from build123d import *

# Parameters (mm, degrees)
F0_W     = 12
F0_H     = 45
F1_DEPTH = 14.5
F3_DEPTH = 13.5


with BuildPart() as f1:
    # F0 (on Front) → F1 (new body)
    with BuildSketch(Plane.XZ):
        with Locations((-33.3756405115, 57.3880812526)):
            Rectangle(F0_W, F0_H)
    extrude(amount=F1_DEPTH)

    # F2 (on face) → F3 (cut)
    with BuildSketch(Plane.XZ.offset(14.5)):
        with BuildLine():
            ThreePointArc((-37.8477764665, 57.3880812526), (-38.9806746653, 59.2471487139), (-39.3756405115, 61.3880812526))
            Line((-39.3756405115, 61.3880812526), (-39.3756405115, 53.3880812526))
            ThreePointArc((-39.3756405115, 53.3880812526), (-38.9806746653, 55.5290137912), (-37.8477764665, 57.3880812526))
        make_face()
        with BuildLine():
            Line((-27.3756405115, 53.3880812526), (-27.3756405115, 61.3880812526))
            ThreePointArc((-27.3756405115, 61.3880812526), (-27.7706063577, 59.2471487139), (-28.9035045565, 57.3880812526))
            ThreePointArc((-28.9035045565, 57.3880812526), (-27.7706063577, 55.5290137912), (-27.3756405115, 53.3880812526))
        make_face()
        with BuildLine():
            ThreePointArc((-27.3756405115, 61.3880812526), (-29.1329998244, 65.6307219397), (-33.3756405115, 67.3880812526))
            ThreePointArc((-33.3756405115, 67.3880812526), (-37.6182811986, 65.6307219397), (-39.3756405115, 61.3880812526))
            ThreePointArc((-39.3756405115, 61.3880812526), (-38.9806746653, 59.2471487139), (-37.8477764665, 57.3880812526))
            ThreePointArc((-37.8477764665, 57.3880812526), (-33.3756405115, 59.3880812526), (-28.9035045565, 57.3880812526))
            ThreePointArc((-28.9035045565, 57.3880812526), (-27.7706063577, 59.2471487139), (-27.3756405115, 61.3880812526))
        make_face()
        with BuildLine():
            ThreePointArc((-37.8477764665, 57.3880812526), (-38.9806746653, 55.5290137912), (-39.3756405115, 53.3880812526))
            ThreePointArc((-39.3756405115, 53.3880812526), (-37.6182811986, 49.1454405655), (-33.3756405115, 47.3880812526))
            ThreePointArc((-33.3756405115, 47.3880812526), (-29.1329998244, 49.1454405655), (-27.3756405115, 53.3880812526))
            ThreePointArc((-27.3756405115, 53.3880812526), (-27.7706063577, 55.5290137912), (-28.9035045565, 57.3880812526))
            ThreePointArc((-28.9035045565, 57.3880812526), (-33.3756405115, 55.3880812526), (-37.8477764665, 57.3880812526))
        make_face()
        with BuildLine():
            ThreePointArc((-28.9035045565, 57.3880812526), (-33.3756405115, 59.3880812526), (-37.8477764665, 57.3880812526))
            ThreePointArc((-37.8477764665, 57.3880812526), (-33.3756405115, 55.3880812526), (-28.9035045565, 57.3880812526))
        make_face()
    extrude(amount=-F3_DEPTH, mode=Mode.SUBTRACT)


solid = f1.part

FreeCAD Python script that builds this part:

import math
import FreeCAD as App
import Part
import Sketcher


def add_polygon(sketch, points):
    """Adds a closed chain of lines whose ends are joined by coincident constraints."""
    first, n = sketch.GeometryCount, len(points)
    for a, b in zip(points, points[1:] + points[:1]):
        sketch.addGeometry(Part.LineSegment(App.Vector(*a, 0), App.Vector(*b, 0)), False)
    for i in range(n):
        sketch.addConstraint(Sketcher.Constraint("Coincident", first + i, 2, first + (i + 1) % n, 1))

doc = App.newDocument("Part")
body = doc.addObject("PartDesign::Body", "Body")

# Sketch on XZ plane
sketch1 = doc.addObject("Sketcher::SketchObject", "Sketch")
body.addObject(sketch1)
sketch1.AttachmentSupport = (doc.XZ_Plane, [""])
sketch1.MapMode = "FlatFace"
add_polygon(sketch1, [(-39, 80), (-39, 35), (-27, 35), (-27, 80)])  # lines 0-3
sketch1.addConstraint([
    Sketcher.Constraint("Vertical", 0),
    Sketcher.Constraint("Horizontal", 1),
    Sketcher.Constraint("Vertical", 2),
    Sketcher.Constraint("Horizontal", 3),
    Sketcher.Constraint("DistanceX", 1, 1, 1, 2, 12.0),
    Sketcher.Constraint("DistanceY", 0, 2, 0, 1, 45.0),
    Sketcher.Constraint("DistanceX", 0, 2, -1, 1, 39.375641),
    Sketcher.Constraint("DistanceY", -1, 1, 0, 2, 34.888081),
])
pad1 = doc.addObject("PartDesign::Pad", "Pad")
body.addObject(pad1)
pad1.Profile = sketch1
pad1.Length = 14.5

# Sketch on XZ plane
sketch2 = doc.addObject("Sketcher::SketchObject", "Sketch001")
body.addObject(sketch2)
sketch2.AttachmentSupport = (doc.XZ_Plane, [""])
sketch2.MapMode = "FlatFace"
sketch2.AttachmentOffset = App.Placement(App.Vector(0, 0, 14.5), App.Rotation())
sketch2.addGeometry([
    Part.LineSegment(App.Vector(-39, 61, 0), App.Vector(-39, 53, 0)),  # 0
    Part.ArcOfCircle(Part.Circle(App.Vector(-33, 53, 0), App.Vector(0, 0, 1), 6), math.radians(180), math.radians(270)),  # 1
    Part.ArcOfCircle(Part.Circle(App.Vector(-33, 53, 0), App.Vector(0, 0, 1), 6), math.radians(-90), math.radians(0)),  # 2
    Part.LineSegment(App.Vector(-27, 53, 0), App.Vector(-27, 61, 0)),  # 3
    Part.ArcOfCircle(Part.Circle(App.Vector(-33, 61, 0), App.Vector(0, 0, 1), 6), math.radians(0), math.radians(90)),  # 4
    Part.ArcOfCircle(Part.Circle(App.Vector(-33, 61, 0), App.Vector(0, 0, 1), 6), math.radians(90), math.radians(180)),  # 5
], False)
sketch2.addConstraint([
    Sketcher.Constraint("Tangent", 0, 2, 1, 1),
    Sketcher.Constraint("Tangent", 1, 2, 2, 1),
    Sketcher.Constraint("Tangent", 2, 2, 3, 1),
    Sketcher.Constraint("Tangent", 3, 2, 4, 1),
    Sketcher.Constraint("Tangent", 4, 2, 5, 1),
    Sketcher.Constraint("Tangent", 5, 2, 0, 1),
    Sketcher.Constraint("Vertical", 0),
    Sketcher.Constraint("Vertical", 3),
    Sketcher.Constraint("Equal", 1, 2),
    Sketcher.Constraint("Equal", 2, 4),
    Sketcher.Constraint("Vertical", 5, 3, 1, 2),
    Sketcher.Constraint("Vertical", 1, 2, 4, 2),
    Sketcher.Constraint("Radius", 1, 6.0),
    Sketcher.Constraint("DistanceY", 0, 2, 0, 1, 8.0),
    Sketcher.Constraint("DistanceX", 1, 3, -1, 1, 33.375641),
    Sketcher.Constraint("DistanceY", -1, 1, 1, 3, 53.388081),
])
pocket1 = doc.addObject("PartDesign::Pocket", "Pocket")
body.addObject(pocket1)
pocket1.Profile = sketch2
pocket1.Length = 13.5

doc.recompute()
